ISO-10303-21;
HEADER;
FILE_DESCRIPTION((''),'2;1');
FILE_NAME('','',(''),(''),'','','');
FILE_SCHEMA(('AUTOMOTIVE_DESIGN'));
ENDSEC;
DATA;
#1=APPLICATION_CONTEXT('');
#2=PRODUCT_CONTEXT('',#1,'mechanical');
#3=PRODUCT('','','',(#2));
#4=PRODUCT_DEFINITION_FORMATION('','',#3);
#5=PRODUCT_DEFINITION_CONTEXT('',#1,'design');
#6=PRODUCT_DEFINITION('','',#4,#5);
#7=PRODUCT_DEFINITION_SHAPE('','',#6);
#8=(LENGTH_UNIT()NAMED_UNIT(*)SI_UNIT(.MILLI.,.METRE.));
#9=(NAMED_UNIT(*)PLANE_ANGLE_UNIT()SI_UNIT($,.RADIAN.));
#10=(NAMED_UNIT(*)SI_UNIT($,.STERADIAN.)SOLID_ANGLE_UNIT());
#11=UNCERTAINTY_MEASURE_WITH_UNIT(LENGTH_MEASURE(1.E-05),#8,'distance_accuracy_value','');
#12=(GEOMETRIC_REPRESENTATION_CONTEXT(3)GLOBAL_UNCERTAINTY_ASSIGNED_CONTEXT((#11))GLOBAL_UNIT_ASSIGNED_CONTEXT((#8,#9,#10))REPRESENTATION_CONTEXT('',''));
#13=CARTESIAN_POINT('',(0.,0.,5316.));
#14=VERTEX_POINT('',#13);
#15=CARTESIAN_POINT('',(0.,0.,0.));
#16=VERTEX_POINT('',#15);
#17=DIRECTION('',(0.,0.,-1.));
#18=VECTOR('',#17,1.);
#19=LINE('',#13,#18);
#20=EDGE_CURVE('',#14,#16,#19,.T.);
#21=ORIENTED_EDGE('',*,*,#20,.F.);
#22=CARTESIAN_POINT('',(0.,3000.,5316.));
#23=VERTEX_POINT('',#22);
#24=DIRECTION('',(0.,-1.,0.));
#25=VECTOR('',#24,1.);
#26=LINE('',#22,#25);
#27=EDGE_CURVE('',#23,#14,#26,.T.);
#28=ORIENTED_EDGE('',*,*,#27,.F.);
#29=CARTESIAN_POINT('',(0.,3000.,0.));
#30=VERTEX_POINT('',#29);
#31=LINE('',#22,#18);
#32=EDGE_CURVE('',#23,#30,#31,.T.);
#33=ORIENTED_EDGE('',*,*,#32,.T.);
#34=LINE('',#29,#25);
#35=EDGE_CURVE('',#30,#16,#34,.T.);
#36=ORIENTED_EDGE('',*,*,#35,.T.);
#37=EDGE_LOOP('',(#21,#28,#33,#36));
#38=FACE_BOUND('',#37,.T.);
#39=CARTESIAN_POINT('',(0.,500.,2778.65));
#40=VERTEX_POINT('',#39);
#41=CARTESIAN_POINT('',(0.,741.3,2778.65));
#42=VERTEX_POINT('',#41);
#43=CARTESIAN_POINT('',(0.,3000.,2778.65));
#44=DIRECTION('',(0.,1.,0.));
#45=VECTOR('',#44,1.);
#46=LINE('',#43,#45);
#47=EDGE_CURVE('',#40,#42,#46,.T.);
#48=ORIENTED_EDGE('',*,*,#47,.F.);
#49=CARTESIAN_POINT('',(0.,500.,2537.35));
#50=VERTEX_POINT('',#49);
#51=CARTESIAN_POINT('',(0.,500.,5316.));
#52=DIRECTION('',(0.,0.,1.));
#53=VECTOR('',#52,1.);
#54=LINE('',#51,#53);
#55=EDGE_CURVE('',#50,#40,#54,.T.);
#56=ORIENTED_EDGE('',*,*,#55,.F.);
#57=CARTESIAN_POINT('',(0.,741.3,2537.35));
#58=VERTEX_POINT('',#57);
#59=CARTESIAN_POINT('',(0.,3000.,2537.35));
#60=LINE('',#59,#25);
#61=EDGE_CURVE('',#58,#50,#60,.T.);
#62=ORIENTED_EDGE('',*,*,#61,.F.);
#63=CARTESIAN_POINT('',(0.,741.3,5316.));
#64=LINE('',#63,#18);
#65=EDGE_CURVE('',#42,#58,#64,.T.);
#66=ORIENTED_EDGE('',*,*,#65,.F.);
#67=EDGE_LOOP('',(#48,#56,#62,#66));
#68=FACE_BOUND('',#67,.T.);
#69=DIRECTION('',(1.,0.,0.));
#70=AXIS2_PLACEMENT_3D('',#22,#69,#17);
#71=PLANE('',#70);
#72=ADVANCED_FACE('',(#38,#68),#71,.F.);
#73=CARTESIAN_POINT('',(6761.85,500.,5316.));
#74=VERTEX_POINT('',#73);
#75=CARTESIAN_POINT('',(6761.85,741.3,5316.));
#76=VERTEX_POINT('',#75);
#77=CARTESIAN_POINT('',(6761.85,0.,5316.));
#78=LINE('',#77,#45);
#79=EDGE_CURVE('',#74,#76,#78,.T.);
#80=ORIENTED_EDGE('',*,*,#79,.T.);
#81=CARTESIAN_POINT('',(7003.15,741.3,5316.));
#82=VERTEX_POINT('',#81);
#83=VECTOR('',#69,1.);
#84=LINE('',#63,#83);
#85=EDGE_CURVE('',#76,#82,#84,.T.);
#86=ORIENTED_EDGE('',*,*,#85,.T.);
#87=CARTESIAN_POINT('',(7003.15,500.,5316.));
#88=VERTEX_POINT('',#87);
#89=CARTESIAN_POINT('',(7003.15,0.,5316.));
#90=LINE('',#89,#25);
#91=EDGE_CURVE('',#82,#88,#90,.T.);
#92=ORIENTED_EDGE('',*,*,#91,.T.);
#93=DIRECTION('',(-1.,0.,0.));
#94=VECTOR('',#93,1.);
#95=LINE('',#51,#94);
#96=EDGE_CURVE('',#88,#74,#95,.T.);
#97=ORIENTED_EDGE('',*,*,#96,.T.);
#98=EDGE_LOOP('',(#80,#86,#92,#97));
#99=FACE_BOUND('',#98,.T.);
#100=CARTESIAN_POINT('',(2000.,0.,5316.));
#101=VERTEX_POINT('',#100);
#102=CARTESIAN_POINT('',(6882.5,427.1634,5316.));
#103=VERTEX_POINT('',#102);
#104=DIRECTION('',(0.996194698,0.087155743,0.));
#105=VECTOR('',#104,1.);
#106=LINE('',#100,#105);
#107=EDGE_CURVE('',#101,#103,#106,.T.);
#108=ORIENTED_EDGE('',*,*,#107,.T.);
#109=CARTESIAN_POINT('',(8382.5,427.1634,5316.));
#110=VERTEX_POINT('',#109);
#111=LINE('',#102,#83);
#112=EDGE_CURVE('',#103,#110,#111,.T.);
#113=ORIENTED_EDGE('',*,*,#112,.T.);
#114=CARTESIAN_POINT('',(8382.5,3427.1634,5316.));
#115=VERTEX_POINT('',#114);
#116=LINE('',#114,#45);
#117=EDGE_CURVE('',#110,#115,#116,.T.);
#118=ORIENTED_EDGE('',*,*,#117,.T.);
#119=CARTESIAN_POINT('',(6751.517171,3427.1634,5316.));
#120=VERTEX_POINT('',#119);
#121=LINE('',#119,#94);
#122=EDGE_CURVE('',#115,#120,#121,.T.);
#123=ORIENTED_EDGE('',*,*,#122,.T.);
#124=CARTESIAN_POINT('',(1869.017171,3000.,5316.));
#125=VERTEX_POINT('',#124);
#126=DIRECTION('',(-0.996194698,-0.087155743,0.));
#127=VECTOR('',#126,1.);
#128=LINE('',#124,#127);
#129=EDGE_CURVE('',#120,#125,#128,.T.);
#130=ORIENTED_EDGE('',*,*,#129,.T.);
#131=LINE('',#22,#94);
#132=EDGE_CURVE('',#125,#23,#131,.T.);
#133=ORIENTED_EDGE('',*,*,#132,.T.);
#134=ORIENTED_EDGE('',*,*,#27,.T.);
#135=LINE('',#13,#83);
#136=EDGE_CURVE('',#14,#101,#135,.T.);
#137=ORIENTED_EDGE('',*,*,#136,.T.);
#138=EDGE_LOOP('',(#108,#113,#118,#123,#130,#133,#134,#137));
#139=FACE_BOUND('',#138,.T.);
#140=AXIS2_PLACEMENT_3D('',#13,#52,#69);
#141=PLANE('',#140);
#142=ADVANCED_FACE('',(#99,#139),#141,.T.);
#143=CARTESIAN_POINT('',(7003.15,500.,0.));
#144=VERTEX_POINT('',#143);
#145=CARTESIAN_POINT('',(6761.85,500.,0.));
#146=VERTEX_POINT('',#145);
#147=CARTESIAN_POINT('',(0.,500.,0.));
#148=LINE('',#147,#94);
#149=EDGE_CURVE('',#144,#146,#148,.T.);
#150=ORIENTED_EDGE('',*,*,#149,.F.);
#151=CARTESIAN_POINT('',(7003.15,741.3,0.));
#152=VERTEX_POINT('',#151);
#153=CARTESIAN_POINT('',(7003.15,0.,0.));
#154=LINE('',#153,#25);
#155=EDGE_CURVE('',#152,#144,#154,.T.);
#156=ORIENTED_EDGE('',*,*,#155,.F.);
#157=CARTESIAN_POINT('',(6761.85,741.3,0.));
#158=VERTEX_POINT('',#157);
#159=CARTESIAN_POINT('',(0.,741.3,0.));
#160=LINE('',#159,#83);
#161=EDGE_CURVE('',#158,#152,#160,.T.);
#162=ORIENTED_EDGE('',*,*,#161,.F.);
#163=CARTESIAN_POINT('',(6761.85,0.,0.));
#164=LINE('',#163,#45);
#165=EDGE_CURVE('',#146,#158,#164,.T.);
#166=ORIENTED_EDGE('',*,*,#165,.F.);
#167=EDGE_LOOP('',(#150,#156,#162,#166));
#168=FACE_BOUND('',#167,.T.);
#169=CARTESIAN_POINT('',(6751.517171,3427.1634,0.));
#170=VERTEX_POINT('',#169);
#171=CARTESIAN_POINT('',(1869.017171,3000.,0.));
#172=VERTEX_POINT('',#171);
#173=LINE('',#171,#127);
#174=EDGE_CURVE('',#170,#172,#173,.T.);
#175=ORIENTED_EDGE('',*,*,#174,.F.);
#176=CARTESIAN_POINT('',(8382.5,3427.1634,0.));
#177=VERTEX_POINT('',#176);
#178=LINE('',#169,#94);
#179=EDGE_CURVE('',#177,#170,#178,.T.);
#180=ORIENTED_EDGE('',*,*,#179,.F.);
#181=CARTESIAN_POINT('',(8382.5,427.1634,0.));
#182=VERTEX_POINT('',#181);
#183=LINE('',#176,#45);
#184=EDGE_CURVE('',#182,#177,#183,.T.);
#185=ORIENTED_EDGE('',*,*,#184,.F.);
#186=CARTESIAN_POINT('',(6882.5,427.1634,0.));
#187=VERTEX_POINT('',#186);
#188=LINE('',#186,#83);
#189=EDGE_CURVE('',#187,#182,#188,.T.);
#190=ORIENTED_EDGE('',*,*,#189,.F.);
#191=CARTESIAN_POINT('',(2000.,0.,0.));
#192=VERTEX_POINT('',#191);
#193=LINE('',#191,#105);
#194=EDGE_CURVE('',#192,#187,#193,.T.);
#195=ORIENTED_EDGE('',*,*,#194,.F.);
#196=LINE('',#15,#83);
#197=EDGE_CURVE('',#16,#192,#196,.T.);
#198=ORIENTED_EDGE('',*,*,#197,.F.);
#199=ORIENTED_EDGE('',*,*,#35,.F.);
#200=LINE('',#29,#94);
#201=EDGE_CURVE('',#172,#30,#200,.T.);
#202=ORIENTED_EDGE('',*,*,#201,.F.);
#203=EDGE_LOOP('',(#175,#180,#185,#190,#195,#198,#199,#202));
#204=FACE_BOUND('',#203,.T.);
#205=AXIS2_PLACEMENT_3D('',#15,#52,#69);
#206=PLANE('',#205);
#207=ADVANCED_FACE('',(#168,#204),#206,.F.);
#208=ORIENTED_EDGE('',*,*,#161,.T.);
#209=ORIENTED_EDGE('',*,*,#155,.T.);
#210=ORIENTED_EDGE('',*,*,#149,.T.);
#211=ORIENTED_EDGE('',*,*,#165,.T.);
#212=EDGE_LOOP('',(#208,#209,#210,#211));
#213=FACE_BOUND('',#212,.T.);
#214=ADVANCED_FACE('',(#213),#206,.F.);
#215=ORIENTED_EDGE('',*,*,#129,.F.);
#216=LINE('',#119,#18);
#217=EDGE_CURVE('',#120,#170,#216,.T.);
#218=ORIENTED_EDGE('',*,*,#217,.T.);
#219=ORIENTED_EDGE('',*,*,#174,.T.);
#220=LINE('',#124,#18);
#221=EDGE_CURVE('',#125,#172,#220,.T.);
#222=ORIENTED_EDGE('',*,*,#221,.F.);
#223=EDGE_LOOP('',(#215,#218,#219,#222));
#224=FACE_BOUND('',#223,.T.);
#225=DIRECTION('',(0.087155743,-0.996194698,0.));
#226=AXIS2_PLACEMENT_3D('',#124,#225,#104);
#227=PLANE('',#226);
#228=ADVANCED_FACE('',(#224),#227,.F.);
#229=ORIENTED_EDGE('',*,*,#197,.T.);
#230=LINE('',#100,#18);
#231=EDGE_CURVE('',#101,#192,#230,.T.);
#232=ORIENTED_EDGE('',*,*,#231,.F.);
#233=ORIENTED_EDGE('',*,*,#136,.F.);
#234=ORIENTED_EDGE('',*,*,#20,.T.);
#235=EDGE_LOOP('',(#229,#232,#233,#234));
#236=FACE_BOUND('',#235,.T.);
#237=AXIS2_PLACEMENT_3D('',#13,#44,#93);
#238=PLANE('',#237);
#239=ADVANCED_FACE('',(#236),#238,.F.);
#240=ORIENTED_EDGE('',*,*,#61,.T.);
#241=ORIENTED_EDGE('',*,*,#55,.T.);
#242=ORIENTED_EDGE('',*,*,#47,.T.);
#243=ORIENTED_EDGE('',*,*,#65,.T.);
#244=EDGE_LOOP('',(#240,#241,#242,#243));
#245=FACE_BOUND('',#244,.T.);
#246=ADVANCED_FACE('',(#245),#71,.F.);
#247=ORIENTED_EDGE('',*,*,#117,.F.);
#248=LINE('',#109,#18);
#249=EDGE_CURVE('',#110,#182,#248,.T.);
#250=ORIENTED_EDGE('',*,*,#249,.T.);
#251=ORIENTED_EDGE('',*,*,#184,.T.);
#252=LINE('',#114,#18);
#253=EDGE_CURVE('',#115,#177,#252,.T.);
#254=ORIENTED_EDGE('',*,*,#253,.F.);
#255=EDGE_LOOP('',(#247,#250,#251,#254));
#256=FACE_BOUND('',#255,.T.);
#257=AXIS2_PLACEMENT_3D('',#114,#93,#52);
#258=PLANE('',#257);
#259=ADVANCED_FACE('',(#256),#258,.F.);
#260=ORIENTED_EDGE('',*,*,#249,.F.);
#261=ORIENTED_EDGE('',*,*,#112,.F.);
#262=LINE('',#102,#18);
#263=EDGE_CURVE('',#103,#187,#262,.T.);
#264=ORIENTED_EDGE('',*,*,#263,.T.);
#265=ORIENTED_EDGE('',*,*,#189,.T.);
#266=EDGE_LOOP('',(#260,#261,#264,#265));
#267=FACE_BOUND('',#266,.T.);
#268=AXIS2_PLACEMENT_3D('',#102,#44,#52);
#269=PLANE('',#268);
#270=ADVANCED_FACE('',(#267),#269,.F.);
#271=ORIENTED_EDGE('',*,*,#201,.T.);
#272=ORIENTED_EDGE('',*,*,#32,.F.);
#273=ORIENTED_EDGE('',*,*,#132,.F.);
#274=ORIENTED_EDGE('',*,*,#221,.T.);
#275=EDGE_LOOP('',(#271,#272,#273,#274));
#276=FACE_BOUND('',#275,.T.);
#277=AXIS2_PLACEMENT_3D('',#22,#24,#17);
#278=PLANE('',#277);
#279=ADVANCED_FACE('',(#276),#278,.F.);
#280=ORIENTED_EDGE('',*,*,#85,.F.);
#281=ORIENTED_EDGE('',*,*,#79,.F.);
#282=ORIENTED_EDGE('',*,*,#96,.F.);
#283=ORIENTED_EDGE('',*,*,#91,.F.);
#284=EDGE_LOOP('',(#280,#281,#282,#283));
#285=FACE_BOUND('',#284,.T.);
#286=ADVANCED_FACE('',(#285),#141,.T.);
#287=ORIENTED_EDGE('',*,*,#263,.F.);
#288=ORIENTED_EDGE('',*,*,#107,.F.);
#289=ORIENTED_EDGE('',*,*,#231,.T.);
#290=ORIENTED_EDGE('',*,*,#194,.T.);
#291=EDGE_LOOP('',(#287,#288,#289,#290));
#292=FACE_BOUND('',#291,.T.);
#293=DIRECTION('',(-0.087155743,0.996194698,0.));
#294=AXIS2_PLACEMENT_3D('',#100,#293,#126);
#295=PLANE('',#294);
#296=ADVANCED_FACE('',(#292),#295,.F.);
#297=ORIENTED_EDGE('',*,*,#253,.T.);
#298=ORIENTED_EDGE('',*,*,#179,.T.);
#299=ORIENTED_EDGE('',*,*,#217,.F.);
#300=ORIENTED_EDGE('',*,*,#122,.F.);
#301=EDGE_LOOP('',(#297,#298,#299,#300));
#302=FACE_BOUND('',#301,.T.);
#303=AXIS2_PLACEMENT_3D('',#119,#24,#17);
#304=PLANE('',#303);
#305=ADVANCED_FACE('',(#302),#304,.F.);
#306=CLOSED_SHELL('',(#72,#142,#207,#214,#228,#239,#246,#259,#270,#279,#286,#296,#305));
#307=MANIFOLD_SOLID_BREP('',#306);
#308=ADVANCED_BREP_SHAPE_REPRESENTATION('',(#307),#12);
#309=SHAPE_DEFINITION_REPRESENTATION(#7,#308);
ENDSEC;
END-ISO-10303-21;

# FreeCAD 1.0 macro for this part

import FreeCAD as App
import Part
import Sketcher
Q = App.Units.Quantity

doc = App.newDocument("Part")
body = doc.addObject("PartDesign::Body", "Body")

# Sketch on XY plane
sketch1 = body.newObject("Sketcher::SketchObject", "Sketch")
sketch1.AttachmentSupport = (doc.getObject("XY_Plane"), [""])
sketch1.MapMode = "FlatFace"
sketch1.addGeometry([
    Part.LineSegment(App.Vector(0, 0, 0), App.Vector(2000, 0, 0)),  # 0
    Part.LineSegment(App.Vector(2000, 0, 0), App.Vector(6882.5, 427.1634, 0)),  # 1
    Part.LineSegment(App.Vector(6882.5, 427.1634, 0), App.Vector(8382.5, 427.1634, 0)),  # 2
    Part.LineSegment(App.Vector(8382.5, 427.1634, 0), App.Vector(8382.5, 3427.1634, 0)),  # 3
    Part.LineSegment(App.Vector(8382.5, 3427.1634, 0), App.Vector(6751.517171, 3427.1634, 0)),  # 4
    Part.LineSegment(App.Vector(6751.517171, 3427.1634, 0), App.Vector(1869.017171, 3000, 0)),  # 5
    Part.LineSegment(App.Vector(1869.017171, 3000, 0), App.Vector(0, 3000, 0)),  # 6
    Part.LineSegment(App.Vector(0, 3000, 0), App.Vector(0, 0, 0)),  # 7
], False)
sketch1.addConstraint([
    Sketcher.Constraint("Coincident", 0, 2, 1, 1),
    Sketcher.Constraint("Coincident", 1, 2, 2, 1),
    Sketcher.Constraint("Coincident", 2, 2, 3, 1),
    Sketcher.Constraint("Coincident", 3, 2, 4, 1),
    Sketcher.Constraint("Coincident", 4, 2, 5, 1),
    Sketcher.Constraint("Coincident", 5, 2, 6, 1),
    Sketcher.Constraint("Coincident", 6, 2, 7, 1),
    Sketcher.Constraint("Coincident", 7, 2, 0, 1),
    Sketcher.Constraint("Horizontal", 0),
    Sketcher.Constraint("Horizontal", 2),
    Sketcher.Constraint("Vertical", 3),
    Sketcher.Constraint("Horizontal", 4),
    Sketcher.Constraint("Horizontal", 6),
    Sketcher.Constraint("Vertical", 7),
    Sketcher.Constraint("Coincident", 7, 2, -1, 1),
    Sketcher.Constraint("Parallel", 1, 5),
    Sketcher.Constraint("Equal", 3, 7),
    Sketcher.Constraint("DistanceX", 0, 1, 0, 2, Q("2000 mm")),
    Sketcher.Constraint("DistanceX", 2, 1, 2, 2, Q("1500 mm")),
    Sketcher.Constraint("DistanceY", 3, 1, 3, 2, Q("3000 mm")),
    Sketcher.Constraint("Angle", 1, Q("5 deg")),
    Sketcher.Constraint("DistanceX", -1, 1, 1, 2, Q("6882.5 mm")),
    Sketcher.Constraint("DistanceX", 4, 2, 4, 1, Q("1630.982829 mm")),
])
pad1 = body.newObject("PartDesign::Pad", "Pad")
pad1.Profile = sketch1
pad1.Length = 5316

doc.recompute()
